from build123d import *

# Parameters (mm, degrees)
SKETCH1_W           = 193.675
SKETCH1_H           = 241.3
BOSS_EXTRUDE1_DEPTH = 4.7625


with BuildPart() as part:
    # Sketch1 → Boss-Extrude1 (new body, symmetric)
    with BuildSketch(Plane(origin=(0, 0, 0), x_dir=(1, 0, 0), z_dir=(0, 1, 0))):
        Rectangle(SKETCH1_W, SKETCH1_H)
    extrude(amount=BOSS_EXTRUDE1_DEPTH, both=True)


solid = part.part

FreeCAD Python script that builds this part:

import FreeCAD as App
import Part
import Sketcher
from FreeCAD import Vector
Q = App.Units.Quantity


def add_polygon(sketch, points):
    """Adds a closed chain of lines whose ends are joined by coincident constraints."""
    first, n = sketch.GeometryCount, len(points)
    for a, b in zip(points, points[1:] + points[:1]):
        sketch.addGeometry(Part.LineSegment(App.Vector(*a, 0), App.Vector(*b, 0)), False)
    for i in range(n):
        sketch.addConstraint(Sketcher.Constraint("Coincident", first + i, 2, first + (i + 1) % n, 1))

doc = App.newDocument("Part")
body = doc.addObject("PartDesign::Body", "Body")

# Sketch on XZ plane
sketch1 = doc.addObject("Sketcher::SketchObject", "Sketch")
body.addObject(sketch1)
sketch1.AttachmentSupport = (doc.XZ_Plane, [""])
sketch1.MapMode = "FlatFace"
add_polygon(sketch1, [(-97, -121), (-97, 121), (97, 121), (97, -121)])  # lines 0-3
sketch1.addConstraint([
    Sketcher.Constraint("Vertical", 0),
    Sketcher.Constraint("Horizontal", 1),
    Sketcher.Constraint("Vertical", 2),
    Sketcher.Constraint("Horizontal", 3),
    Sketcher.Constraint("Symmetric", 0, 2, 2, 2, -1, 1),
    Sketcher.Constraint("DistanceY", 0, 1, 0, 2, Q("9.5 in")),
    Sketcher.Constraint("DistanceX", 1, 1, 1, 2, Q("7.625 in")),
])
pad1 = doc.addObject("PartDesign::Pad", "Pad")
body.addObject(pad1)
pad1.Profile = sketch1
pad1.Length = Q("0.375 in")
pad1.Midplane = True

doc.recompute()
